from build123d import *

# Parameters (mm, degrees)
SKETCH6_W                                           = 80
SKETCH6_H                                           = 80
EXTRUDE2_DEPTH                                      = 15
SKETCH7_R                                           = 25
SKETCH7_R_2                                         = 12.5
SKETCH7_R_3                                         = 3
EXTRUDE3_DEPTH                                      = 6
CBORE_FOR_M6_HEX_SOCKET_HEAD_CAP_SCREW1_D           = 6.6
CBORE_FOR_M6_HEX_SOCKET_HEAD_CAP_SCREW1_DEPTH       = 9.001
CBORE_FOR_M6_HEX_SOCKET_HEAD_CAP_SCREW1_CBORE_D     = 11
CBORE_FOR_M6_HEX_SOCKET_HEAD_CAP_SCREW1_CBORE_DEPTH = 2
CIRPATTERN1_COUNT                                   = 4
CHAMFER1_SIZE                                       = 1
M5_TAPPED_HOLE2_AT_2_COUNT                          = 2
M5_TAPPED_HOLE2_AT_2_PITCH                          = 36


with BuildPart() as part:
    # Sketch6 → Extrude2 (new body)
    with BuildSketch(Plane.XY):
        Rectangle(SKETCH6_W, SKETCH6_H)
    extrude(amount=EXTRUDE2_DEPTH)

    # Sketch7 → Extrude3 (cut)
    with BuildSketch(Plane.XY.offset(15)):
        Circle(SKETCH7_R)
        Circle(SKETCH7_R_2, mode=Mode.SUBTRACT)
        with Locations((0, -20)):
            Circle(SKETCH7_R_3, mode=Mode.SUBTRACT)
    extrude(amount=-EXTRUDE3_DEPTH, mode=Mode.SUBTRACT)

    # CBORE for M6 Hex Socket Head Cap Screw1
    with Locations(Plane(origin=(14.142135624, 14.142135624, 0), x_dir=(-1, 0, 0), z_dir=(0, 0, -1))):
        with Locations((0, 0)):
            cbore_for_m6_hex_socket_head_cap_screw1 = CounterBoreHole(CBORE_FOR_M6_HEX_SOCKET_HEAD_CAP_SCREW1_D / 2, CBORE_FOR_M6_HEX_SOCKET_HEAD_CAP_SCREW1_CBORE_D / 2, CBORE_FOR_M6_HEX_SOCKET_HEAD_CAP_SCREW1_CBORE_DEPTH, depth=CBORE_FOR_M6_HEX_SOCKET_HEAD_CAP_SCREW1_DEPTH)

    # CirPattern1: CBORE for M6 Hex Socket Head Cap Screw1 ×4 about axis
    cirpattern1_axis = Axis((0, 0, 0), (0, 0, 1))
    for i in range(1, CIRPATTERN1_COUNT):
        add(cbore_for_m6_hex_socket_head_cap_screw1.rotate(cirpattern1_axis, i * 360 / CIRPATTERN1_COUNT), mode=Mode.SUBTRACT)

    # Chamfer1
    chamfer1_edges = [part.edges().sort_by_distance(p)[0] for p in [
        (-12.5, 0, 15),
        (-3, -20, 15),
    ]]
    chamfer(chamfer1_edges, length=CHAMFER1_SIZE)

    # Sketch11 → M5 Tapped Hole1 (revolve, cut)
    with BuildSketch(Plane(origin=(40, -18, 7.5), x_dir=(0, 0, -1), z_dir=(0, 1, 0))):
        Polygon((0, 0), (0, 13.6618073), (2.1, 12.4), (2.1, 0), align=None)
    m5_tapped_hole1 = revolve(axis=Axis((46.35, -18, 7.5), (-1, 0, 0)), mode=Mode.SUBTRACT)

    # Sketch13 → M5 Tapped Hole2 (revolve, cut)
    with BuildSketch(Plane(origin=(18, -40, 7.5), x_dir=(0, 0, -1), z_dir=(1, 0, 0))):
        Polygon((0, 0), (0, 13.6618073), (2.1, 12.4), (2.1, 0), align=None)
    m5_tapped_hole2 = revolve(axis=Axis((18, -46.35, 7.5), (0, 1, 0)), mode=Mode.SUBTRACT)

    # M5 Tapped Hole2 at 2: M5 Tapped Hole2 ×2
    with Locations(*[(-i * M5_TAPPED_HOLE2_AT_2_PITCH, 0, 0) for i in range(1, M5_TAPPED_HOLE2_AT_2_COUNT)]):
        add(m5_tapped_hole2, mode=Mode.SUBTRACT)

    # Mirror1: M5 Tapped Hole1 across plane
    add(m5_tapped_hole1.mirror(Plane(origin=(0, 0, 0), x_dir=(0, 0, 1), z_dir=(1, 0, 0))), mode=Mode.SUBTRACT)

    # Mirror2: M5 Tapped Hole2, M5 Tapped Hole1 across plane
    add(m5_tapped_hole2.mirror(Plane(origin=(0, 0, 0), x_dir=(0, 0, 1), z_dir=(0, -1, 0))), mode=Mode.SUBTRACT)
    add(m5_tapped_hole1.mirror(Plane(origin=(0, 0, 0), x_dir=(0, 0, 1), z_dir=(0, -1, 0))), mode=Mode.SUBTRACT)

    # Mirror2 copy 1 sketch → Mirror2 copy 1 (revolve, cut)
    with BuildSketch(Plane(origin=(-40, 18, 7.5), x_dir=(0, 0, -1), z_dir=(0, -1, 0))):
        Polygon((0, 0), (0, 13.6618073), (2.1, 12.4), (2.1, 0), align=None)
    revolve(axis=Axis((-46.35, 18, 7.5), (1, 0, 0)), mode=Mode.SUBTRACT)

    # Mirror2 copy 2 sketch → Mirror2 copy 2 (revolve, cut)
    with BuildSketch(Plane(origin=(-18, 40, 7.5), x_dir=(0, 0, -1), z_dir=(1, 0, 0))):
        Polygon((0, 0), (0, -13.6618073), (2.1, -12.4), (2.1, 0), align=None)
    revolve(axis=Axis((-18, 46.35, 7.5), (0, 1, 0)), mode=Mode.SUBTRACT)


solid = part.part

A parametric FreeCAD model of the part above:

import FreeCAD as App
import Part
import Sketcher
from FreeCAD import Vector
Q = App.Units.Quantity


def edges_at(feature, points):
    """Names of the edges that pass closest to the given points."""
    edges = feature.Shape.Edges
    near = lambda p: min(range(len(edges)), key=lambda i: edges[i].distToShape(Part.Vertex(*p))[0])
    return sorted({f"Edge{near(p) + 1}" for p in points})


def add_polygon(sketch, points):
    """Adds a closed chain of lines whose ends are joined by coincident constraints."""
    first, n = sketch.GeometryCount, len(points)
    for a, b in zip(points, points[1:] + points[:1]):
        sketch.addGeometry(Part.LineSegment(App.Vector(*a, 0), App.Vector(*b, 0)), False)
    for i in range(n):
        sketch.addConstraint(Sketcher.Constraint("Coincident", first + i, 2, first + (i + 1) % n, 1))

doc = App.newDocument("Part")
params = doc.addObject("Spreadsheet::Sheet", "Params")
for row, (alias, value) in enumerate([
    ("sketch1_width", "80 mm"),
    ("pad1_length", "15 mm"),
    ("sketch2_diameter", "50 mm"),
    ("sketch2_diameter2", "6 mm"),
    ("sketch2_diameter3", "25 mm"),
    ("pocket1_length", "6 mm"),
    ("sketch3_diameter", "6.6 mm"),
    ("hole_diameter", "6.6 mm"),
    ("hole_depth", "9.001 mm"),
    ("hole_cbore_diameter", "11 mm"),
    ("hole_cbore_depth", "2 mm"),
    ("chamfer_size", "1 mm"),
    ("sketch4_width", "12.4 mm"),
    ("sketch4_height", "2.1 mm"),
    ("groove_angle", "360 deg"),
    ("sketch5_width", "12.4 mm"),
    ("sketch5_height", "2.1 mm"),
    ("groove2_angle", "360 deg"),
    ("linearpattern_pitch", "36 mm"),
    ("sketch6_width", "12.4 mm"),
    ("sketch6_height", "2.1 mm"),
    ("groove3_angle", "360 deg"),
    ("sketch7_width", "12.4 mm"),
    ("sketch7_height", "2.1 mm"),
    ("groove4_angle", "360 deg"),
], start=1):
    params.set(f"A{row}", alias)
    params.set(f"B{row}", "=" + value)
    params.setAlias(f"B{row}", alias)

body = doc.addObject("PartDesign::Body", "Body")

sketch1 = body.newObject("Sketcher::SketchObject", "Sketch")
sketch1.AttachmentSupport = (doc.getObject("XY_Plane"), [""])
sketch1.MapMode = "FlatFace"
add_polygon(sketch1, [(-40, 40), (-40, -40), (40, -40), (40, 40)])
sketch1.addConstraint([
    Sketcher.Constraint("Vertical", 0),
    Sketcher.Constraint("Horizontal", 1),
    Sketcher.Constraint("Vertical", 2),
    Sketcher.Constraint("Horizontal", 3),
    Sketcher.Constraint("Symmetric", 0, 2, 2, 2, -1, 1),
    Sketcher.Constraint("Equal", 3, 0),
    Sketcher.Constraint("DistanceX", 1, 1, 1, 2, Q("80 mm")),
])
sketch1.setExpression("Constraints[10]", "Params.sketch1_width")
pad1 = body.newObject("PartDesign::Pad", "Pad")
pad1.Profile = sketch1
pad1.setExpression("Length", "Params.pad1_length")

sketch2 = body.newObject("Sketcher::SketchObject", "Sketch001")
sketch2.AttachmentSupport = (doc.getObject("XY_Plane"), [""])
sketch2.MapMode = "FlatFace"
sketch2.AttachmentOffset = App.Placement(Vector(0, 0, 15), App.Rotation())
sketch2.addGeometry([
    Part.Circle(Vector(0, 0, 0), Vector(0, 0, 1), 25),
    Part.Circle(Vector(0, -20, 0), Vector(0, 0, 1), 3),
    Part.Circle(Vector(0, 0, 0), Vector(0, 0, 1), 12.5),
], False)
sketch2.addConstraint([
    Sketcher.Constraint("Coincident", 0, 3, -1, 1),
    Sketcher.Constraint("Coincident", 2, 3, -1, 1),
    Sketcher.Constraint("PointOnObject", 1, 3, -2),
    Sketcher.Constraint("Diameter", 0, Q("50 mm")),
    Sketcher.Constraint("Diameter", 1, Q("6 mm")),
    Sketcher.Constraint("Diameter", 2, Q("25 mm")),
    Sketcher.Constraint("DistanceY", 1, 3, -1, 1, Q("20 mm")),
])
sketch2.setExpression("Constraints[3]", "Params.sketch2_diameter")
sketch2.setExpression("Constraints[4]", "Params.sketch2_diameter2")
sketch2.setExpression("Constraints[5]", "Params.sketch2_diameter3")
pocket1 = body.newObject("PartDesign::Pocket", "Pocket")
pocket1.Profile = sketch2
pocket1.setExpression("Length", "Params.pocket1_length")

sketch3 = body.newObject("Sketcher::SketchObject", "Sketch002")
sketch3.AttachmentSupport = (doc.getObject("XY_Plane"), [""])
sketch3.MapMode = "FlatFace"
sketch3.addGeometry(Part.Circle(Vector(14.142136, 14.142136, 0), Vector(0, 0, 1), 3.3), False)
sketch3.addConstraint([
    Sketcher.Constraint("Diameter", 0, Q("6.6 mm")),
    Sketcher.Constraint("DistanceX", -1, 1, 0, 3, Q("14.142136 mm")),
    Sketcher.Constraint("DistanceY", -1, 1, 0, 3, Q("14.142136 mm")),
])
sketch3.setExpression("Constraints[0]", "Params.sketch3_diameter")
doc.recompute()
hole = body.newObject("PartDesign::Hole", "Hole")
hole.Profile = sketch3
hole.ThreadType = "None"
hole.setExpression("Diameter", "Params.hole_diameter")
hole.DepthType = "Dimension"
hole.setExpression("Depth", "Params.hole_depth")
hole.DrillPoint = "Flat"
hole.HoleCutType = "Counterbore"
hole.setExpression("HoleCutDiameter", "Params.hole_cbore_diameter")
hole.setExpression("HoleCutDepth", "Params.hole_cbore_depth")
hole.Reversed = True
doc.recompute()

polarpattern = body.newObject("PartDesign::PolarPattern", "PolarPattern")
polarpattern.Originals = [hole]
polarpattern.Axis = (doc.getObject("Z_Axis"), [""])
polarpattern.Angle = 360
polarpattern.Occurrences = 4
body.Tip = polarpattern
doc.recompute()

chamfer = body.newObject("PartDesign::Chamfer", "Chamfer")
chamfer.Base = (polarpattern, edges_at(polarpattern, [(-12.5, 0, 15), (-3, -20, 15)]))
chamfer.setExpression("Size", "Params.chamfer_size")

sketch4 = body.newObject("Sketcher::SketchObject", "Sketch003")
sketch4.AttachmentSupport = (doc.getObject("XZ_Plane"), [""])
sketch4.MapMode = "FlatFace"
sketch4.AttachmentOffset = App.Placement(Vector(0, 0, 18), App.Rotation())
add_polygon(sketch4, [(26.338193, 7.5), (40, 7.5), (40, 5.4), (27.6, 5.4)])
sketch4.addGeometry(Part.LineSegment(Vector(40, 7.5, 0), Vector(26.338193, 7.5, 0)), True)
sketch4.addConstraint([
    Sketcher.Constraint("Horizontal", 0),
    Sketcher.Constraint("Vertical", 1),
    Sketcher.Constraint("Horizontal", 2),
    Sketcher.Constraint("Horizontal", 4),
    Sketcher.Constraint("Coincident", 4, 1, 0, 2),
    Sketcher.Constraint("Equal", 0, 4),
    Sketcher.Constraint("Angle", 3, Q("121 deg")),
    Sketcher.Constraint("DistanceX", 2, 2, 2, 1, Q("12.4 mm")),
    Sketcher.Constraint("DistanceY", 1, 2, 1, 1, Q("2.1 mm")),
    Sketcher.Constraint("DistanceX", -1, 1, 0, 2, Q("40 mm")),
    Sketcher.Constraint("DistanceY", -1, 1, 0, 2, Q("7.5 mm")),
])
sketch4.setExpression("Constraints[11]", "Params.sketch4_width")
sketch4.setExpression("Constraints[12]", "Params.sketch4_height")
groove = body.newObject("PartDesign::Groove", "Groove")
groove.Profile = sketch4
groove.ReferenceAxis = (sketch4, ["Axis0"])
groove.setExpression("Angle", "Params.groove_angle")

sketch5 = body.newObject("Sketcher::SketchObject", "Sketch004")
sketch5.AttachmentSupport = (doc.getObject("YZ_Plane"), [""])
sketch5.MapMode = "FlatFace"
sketch5.AttachmentOffset = App.Placement(Vector(0, 0, 18), App.Rotation())
add_polygon(sketch5, [(-26.338193, 7.5), (-40, 7.5), (-40, 5.4), (-27.6, 5.4)])
sketch5.addGeometry(Part.LineSegment(Vector(-40, 7.5, 0), Vector(-26.338193, 7.5, 0)), True)
sketch5.addConstraint([
    Sketcher.Constraint("Horizontal", 0),
    Sketcher.Constraint("Vertical", 1),
    Sketcher.Constraint("Horizontal", 2),
    Sketcher.Constraint("Horizontal", 4),
    Sketcher.Constraint("Coincident", 4, 1, 0, 2),
    Sketcher.Constraint("Equal", 0, 4),
    Sketcher.Constraint("Angle", 3, Q("59 deg")),
    Sketcher.Constraint("DistanceX", 2, 1, 2, 2, Q("12.4 mm")),
    Sketcher.Constraint("DistanceY", 1, 2, 1, 1, Q("2.1 mm")),
    Sketcher.Constraint("DistanceX", 0, 2, -1, 1, Q("40 mm")),
    Sketcher.Constraint("DistanceY", -1, 1, 0, 2, Q("7.5 mm")),
])
sketch5.setExpression("Constraints[11]", "Params.sketch5_width")
sketch5.setExpression("Constraints[12]", "Params.sketch5_height")
groove2 = body.newObject("PartDesign::Groove", "Groove001")
groove2.Profile = sketch5
groove2.ReferenceAxis = (sketch5, ["Axis0"])
groove2.setExpression("Angle", "Params.groove2_angle")
doc.recompute()

linearpattern = body.newObject("PartDesign::LinearPattern", "LinearPattern")
linearpattern.Originals = [groove2]
linearpattern.Direction = (doc.getObject("X_Axis"), [""])
linearpattern.Mode = "offset"
linearpattern.setExpression("Offset", "Params.linearpattern_pitch")
linearpattern.Occurrences = 2
linearpattern.Reversed = True
body.Tip = linearpattern
doc.recompute()

mirrored = body.newObject("PartDesign::Mirrored", "Mirrored")
mirrored.Originals = [groove]
mirrored.MirrorPlane = (doc.getObject("YZ_Plane"), [""])
body.Tip = mirrored
doc.recompute()

mirrored2 = body.newObject("PartDesign::Mirrored", "Mirrored001")
mirrored2.Originals = [groove2, groove]
mirrored2.MirrorPlane = (doc.getObject("XZ_Plane"), [""])
body.Tip = mirrored2

sketch6 = body.newObject("Sketcher::SketchObject", "Sketch005")
sketch6.AttachmentSupport = (doc.getObject("XZ_Plane"), [""])
sketch6.MapMode = "FlatFace"
sketch6.AttachmentOffset = App.Placement(Vector(0, 0, -18), App.Rotation())
add_polygon(sketch6, [(-26.338193, 7.5), (-40, 7.5), (-40, 5.4), (-27.6, 5.4)])
sketch6.addGeometry(Part.LineSegment(Vector(-40, 7.5, 0), Vector(-26.338193, 7.5, 0)), True)
sketch6.addConstraint([
    Sketcher.Constraint("Horizontal", 0),
    Sketcher.Constraint("Vertical", 1),
    Sketcher.Constraint("Horizontal", 2),
    Sketcher.Constraint("Horizontal", 4),
    Sketcher.Constraint("Coincident", 4, 1, 0, 2),
    Sketcher.Constraint("Equal", 0, 4),
    Sketcher.Constraint("Angle", 3, Q("59 deg")),
    Sketcher.Constraint("DistanceX", 2, 1, 2, 2, Q("12.4 mm")),
    Sketcher.Constraint("DistanceY", 1, 2, 1, 1, Q("2.1 mm")),
    Sketcher.Constraint("DistanceX", 0, 2, -1, 1, Q("40 mm")),
    Sketcher.Constraint("DistanceY", -1, 1, 0, 2, Q("7.5 mm")),
])
sketch6.setExpression("Constraints[11]", "Params.sketch6_width")
sketch6.setExpression("Constraints[12]", "Params.sketch6_height")
groove3 = body.newObject("PartDesign::Groove", "Groove002")
groove3.Profile = sketch6
groove3.ReferenceAxis = (sketch6, ["Axis0"])
groove3.setExpression("Angle", "Params.groove3_angle")

sketch7 = body.newObject("Sketcher::SketchObject", "Sketch006")
sketch7.AttachmentSupport = (doc.getObject("YZ_Plane"), [""])
sketch7.MapMode = "FlatFace"
sketch7.AttachmentOffset = App.Placement(Vector(0, 0, -18), App.Rotation())
add_polygon(sketch7, [(40, 7.5), (26.338193, 7.5), (27.6, 5.4), (40, 5.4)])
sketch7.addGeometry(Part.LineSegment(Vector(26.338193, 7.5, 0), Vector(40, 7.5, 0)), True)
sketch7.addConstraint([
    Sketcher.Constraint("Horizontal", 0),
    Sketcher.Constraint("Horizontal", 2),
    Sketcher.Constraint("Vertical", 3),
    Sketcher.Constraint("Horizontal", 4),
    Sketcher.Constraint("Coincident", 4, 1, 0, 2),
    Sketcher.Constraint("Vertical", 2, 2, 4, 2),
    Sketcher.Constraint("Angle", 1, Q("-59 deg")),
    Sketcher.Constraint("DistanceX", 2, 1, 2, 2, Q("12.4 mm")),
    Sketcher.Constraint("DistanceY", 3, 1, 3, 2, Q("2.1 mm")),
    Sketcher.Constraint("DistanceX", -1, 1, 2, 2, Q("40 mm")),
    Sketcher.Constraint("DistanceY", -1, 1, 0, 2, Q("7.5 mm")),
])
sketch7.setExpression("Constraints[11]", "Params.sketch7_width")
sketch7.setExpression("Constraints[12]", "Params.sketch7_height")
groove4 = body.newObject("PartDesign::Groove", "Groove003")
groove4.Profile = sketch7
groove4.ReferenceAxis = (sketch7, ["Axis0"])
groove4.setExpression("Angle", "Params.groove4_angle")

doc.recompute()
